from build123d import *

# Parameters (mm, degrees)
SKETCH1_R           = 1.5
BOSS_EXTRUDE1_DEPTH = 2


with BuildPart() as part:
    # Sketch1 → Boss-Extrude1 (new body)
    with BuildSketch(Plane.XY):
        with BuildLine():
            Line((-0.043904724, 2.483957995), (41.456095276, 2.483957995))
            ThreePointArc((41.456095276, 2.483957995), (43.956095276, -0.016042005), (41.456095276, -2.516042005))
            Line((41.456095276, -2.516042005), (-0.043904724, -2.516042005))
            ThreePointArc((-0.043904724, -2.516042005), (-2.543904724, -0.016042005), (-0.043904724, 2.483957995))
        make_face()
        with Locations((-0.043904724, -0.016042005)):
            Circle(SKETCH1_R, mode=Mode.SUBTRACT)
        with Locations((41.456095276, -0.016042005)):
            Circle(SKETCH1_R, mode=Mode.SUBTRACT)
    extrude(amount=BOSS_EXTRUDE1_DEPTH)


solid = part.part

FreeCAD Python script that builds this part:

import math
import FreeCAD as App
import Part
import Sketcher
from FreeCAD import Vector

doc = App.newDocument("Part")
body = doc.addObject("PartDesign::Body", "Body")

sketch1 = body.newObject("Sketcher::SketchObject", "Sketch")
sketch1.AttachmentSupport = (doc.getObject("XY_Plane"), [""])
sketch1.MapMode = "FlatFace"
sketch1.addGeometry([
    Part.LineSegment(Vector(41.5, 2.5, 0), Vector(0, 2.5, 0)),
    Part.ArcOfCircle(Part.Circle(Vector(0, 0, 0), Vector(0, 0, 1), 2.5), math.radians(90), math.radians(270)),
    Part.LineSegment(Vector(0, -2.5, 0), Vector(41.5, -2.5, 0)),
    Part.ArcOfCircle(Part.Circle(Vector(41.5, 0, 0), Vector(0, 0, 1), 2.5), math.radians(-90), math.radians(90)),
    Part.Circle(Vector(41.5, 0, 0), Vector(0, 0, 1), 1.5),
    Part.Circle(Vector(0, 0, 0), Vector(0, 0, 1), 1.5),
], False)
sketch1.addConstraint([
    Sketcher.Constraint("Tangent", 0, 2, 1, 1),
    Sketcher.Constraint("Tangent", 1, 2, 2, 1),
    Sketcher.Constraint("Tangent", 2, 2, 3, 1),
    Sketcher.Constraint("Tangent", 3, 2, 0, 1),
    Sketcher.Constraint("Horizontal", 0),
    Sketcher.Constraint("Horizontal", 2),
    Sketcher.Constraint("Coincident", 4, 3, 3, 3),
    Sketcher.Constraint("Coincident", 5, 3, 1, 3),
    Sketcher.Constraint("Equal", 4, 5),
    Sketcher.Constraint("Diameter", 4, 3.0),
    Sketcher.Constraint("Radius", 1, 2.5),
    Sketcher.Constraint("DistanceX", 0, 2, 0, 1, 41.5),
    Sketcher.Constraint("DistanceX", 1, 3, -1, 1, 0.043905),
    Sketcher.Constraint("DistanceY", 1, 3, -1, 1, 0.016042),
])
pad1 = body.newObject("PartDesign::Pad", "Pad")
pad1.Profile = sketch1
pad1.Length = 2

doc.recompute()
